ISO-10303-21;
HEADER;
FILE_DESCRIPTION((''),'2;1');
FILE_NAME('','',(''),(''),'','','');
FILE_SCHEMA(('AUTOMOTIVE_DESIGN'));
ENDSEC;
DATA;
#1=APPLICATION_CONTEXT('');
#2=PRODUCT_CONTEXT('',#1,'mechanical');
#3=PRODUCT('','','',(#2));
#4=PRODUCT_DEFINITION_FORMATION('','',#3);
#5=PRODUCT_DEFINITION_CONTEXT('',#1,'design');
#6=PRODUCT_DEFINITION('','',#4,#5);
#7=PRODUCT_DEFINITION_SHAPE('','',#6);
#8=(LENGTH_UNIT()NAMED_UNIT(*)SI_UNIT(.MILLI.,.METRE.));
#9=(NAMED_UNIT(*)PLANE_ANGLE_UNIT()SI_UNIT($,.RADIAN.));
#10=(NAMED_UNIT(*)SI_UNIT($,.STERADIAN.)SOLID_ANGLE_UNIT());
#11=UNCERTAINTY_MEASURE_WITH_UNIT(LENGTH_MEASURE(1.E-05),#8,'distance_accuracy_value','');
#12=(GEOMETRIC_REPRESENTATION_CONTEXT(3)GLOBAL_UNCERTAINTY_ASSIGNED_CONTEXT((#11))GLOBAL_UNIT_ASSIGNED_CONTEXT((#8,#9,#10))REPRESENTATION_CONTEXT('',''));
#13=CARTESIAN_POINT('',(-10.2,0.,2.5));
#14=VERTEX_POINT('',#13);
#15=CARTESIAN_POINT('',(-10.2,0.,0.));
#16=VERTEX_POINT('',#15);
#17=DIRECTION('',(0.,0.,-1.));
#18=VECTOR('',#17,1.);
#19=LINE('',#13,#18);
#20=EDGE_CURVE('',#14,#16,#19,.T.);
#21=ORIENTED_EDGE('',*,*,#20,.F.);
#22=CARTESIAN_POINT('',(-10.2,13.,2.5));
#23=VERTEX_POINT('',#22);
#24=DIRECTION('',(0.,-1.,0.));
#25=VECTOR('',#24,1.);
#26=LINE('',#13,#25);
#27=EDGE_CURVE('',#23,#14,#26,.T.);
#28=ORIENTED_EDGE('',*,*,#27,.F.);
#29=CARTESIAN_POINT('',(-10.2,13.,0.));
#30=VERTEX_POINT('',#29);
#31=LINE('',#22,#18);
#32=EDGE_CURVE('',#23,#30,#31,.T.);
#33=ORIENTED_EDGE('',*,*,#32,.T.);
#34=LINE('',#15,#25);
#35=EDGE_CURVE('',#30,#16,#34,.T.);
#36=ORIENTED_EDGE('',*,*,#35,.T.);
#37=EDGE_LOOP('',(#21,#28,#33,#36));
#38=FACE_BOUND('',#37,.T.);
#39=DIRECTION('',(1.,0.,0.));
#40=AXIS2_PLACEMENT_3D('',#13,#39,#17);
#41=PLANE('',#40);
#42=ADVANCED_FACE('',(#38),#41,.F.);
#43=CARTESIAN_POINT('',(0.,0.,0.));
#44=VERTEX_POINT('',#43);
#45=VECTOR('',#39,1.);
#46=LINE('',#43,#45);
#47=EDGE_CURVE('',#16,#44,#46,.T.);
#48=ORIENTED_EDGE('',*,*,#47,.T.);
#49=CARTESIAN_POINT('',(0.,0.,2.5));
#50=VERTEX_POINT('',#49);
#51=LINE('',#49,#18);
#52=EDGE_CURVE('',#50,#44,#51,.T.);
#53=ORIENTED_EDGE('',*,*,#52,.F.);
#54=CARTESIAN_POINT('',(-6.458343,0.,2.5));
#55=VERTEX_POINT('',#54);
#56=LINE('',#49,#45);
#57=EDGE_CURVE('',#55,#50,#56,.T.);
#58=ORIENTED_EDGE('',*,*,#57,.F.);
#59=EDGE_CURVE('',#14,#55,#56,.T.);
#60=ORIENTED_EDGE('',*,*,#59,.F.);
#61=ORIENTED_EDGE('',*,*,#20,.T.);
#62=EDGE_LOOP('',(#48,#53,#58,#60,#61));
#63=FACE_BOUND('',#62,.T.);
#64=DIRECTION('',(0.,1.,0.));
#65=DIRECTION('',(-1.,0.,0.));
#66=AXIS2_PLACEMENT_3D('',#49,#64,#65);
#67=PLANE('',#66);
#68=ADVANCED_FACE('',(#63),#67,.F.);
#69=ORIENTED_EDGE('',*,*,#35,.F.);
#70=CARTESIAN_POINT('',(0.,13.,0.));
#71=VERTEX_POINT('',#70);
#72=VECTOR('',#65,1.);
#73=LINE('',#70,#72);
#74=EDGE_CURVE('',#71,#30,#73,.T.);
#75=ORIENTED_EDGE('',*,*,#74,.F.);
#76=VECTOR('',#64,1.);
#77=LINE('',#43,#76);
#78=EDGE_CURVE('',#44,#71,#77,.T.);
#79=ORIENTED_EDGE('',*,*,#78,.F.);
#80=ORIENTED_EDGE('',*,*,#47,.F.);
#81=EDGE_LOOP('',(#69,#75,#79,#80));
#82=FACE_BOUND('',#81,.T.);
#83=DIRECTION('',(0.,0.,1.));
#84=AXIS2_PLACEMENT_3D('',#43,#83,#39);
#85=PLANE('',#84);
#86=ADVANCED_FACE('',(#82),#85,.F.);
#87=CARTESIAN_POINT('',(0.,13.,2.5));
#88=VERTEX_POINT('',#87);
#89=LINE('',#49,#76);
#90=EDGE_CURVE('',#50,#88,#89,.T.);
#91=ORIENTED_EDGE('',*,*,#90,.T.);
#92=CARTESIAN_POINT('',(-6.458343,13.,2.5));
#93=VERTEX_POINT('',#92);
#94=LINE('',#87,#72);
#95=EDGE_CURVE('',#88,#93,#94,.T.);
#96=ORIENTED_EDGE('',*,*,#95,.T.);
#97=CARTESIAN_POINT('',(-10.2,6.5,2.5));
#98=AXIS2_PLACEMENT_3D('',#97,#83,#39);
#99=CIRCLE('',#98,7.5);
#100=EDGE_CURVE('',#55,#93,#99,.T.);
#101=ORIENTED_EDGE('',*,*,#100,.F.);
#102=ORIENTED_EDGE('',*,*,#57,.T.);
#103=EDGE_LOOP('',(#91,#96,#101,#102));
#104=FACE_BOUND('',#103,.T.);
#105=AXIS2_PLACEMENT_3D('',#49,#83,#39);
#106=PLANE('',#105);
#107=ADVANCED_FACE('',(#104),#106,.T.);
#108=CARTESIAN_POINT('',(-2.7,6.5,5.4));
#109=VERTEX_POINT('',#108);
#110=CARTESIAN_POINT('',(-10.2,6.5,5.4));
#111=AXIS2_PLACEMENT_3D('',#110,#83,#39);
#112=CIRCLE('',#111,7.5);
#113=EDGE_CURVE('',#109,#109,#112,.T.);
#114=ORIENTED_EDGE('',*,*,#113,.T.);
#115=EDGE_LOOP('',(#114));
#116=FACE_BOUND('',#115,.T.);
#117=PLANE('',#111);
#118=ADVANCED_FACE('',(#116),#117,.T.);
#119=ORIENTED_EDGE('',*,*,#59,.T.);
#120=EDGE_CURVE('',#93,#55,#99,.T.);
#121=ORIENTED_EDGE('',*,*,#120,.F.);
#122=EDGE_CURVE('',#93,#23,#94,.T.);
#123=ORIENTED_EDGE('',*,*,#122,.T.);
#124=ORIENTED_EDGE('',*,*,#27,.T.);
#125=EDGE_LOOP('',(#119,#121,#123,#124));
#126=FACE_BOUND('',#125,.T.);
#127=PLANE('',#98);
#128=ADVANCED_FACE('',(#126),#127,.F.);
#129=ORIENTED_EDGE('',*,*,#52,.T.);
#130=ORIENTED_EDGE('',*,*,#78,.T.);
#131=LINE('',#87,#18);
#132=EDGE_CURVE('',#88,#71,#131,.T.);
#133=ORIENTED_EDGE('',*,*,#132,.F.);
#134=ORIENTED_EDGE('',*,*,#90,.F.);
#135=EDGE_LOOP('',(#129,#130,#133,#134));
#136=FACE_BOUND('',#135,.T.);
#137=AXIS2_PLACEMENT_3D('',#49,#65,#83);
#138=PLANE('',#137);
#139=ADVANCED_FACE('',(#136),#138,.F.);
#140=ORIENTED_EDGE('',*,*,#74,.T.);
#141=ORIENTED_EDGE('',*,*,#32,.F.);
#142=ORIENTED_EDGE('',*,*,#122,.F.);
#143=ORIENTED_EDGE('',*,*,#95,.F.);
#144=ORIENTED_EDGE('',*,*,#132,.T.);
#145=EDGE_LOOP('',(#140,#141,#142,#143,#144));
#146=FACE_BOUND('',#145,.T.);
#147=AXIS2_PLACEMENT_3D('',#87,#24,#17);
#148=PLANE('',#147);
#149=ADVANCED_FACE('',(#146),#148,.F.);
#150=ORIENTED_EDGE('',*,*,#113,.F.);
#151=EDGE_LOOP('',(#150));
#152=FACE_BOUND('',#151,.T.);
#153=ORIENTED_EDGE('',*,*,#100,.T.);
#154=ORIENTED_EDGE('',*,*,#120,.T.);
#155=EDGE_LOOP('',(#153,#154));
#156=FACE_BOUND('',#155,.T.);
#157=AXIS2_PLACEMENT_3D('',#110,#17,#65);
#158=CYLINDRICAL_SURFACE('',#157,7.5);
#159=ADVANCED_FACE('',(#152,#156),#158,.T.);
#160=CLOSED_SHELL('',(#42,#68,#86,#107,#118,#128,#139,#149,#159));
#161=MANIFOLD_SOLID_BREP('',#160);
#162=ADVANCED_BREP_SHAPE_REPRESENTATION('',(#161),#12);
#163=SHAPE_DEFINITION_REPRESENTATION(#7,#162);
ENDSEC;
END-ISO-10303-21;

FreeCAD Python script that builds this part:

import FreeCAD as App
import Part
import Sketcher


def add_polygon(sketch, points):
    """Adds a closed chain of lines whose ends are joined by coincident constraints."""
    first, n = sketch.GeometryCount, len(points)
    for a, b in zip(points, points[1:] + points[:1]):
        sketch.addGeometry(Part.LineSegment(App.Vector(*a, 0), App.Vector(*b, 0)), False)
    for i in range(n):
        sketch.addConstraint(Sketcher.Constraint("Coincident", first + i, 2, first + (i + 1) % n, 1))

doc = App.newDocument("Part")
params = doc.addObject("Spreadsheet::Sheet", "Params")
for row, (alias, value) in enumerate([
    ("sketch1_height", "13 mm"),
    ("sketch1_width", "10.2 mm"),
    ("pad1_length", "2.5 mm"),
    ("sketch2_diameter", "15 mm"),
    ("pad2_length", "2.9 mm"),
], start=1):
    params.set(f"A{row}", alias)
    params.set(f"B{row}", "=" + value)
    params.setAlias(f"B{row}", alias)

body = doc.addObject("PartDesign::Body", "Body")

sketch1 = body.newObject("Sketcher::SketchObject", "Sketch")
sketch1.AttachmentSupport = (doc.getObject("XY_Plane"), [""])
sketch1.MapMode = "FlatFace"
add_polygon(sketch1, [(-10, 13), (-10, 0), (0, 0), (0, 13)])
sketch1.addConstraint(Sketcher.Constraint("Vertical", 0))
sketch1.addConstraint(Sketcher.Constraint("Horizontal", 1))
sketch1.addConstraint(Sketcher.Constraint("Vertical", 2))
sketch1.addConstraint(Sketcher.Constraint("Horizontal", 3))
sketch1.addConstraint(Sketcher.Constraint("Coincident", 1, 2, -1, 1))
sketch1.addConstraint(Sketcher.Constraint("DistanceY", 0, 2, 0, 1, 13.0))
sketch1.addConstraint(Sketcher.Constraint("DistanceX", 1, 1, 1, 2, 10.2))
sketch1.setExpression("Constraints[9]", "Params.sketch1_height")
sketch1.setExpression("Constraints[10]", "Params.sketch1_width")
pad1 = body.newObject("PartDesign::Pad", "Pad")
pad1.Profile = sketch1
pad1.setExpression("Length", "Params.pad1_length")

sketch2 = body.newObject("Sketcher::SketchObject", "Sketch001")
sketch2.AttachmentSupport = (doc.getObject("XY_Plane"), [""])
sketch2.MapMode = "FlatFace"
sketch2.AttachmentOffset = App.Placement(App.Vector(0, 0, 2.5), App.Rotation())
sketch2.addGeometry(Part.Circle(App.Vector(-10, 6, 0), App.Vector(0, 0, 1), 8), False)
sketch2.addConstraint(Sketcher.Constraint("Diameter", 0, 15.0))
sketch2.addConstraint(Sketcher.Constraint("DistanceX", 0, 3, -1, 1, 10.2))
sketch2.addConstraint(Sketcher.Constraint("DistanceY", -1, 1, 0, 3, 6.5))
sketch2.setExpression("Constraints[0]", "Params.sketch2_diameter")
pad2 = body.newObject("PartDesign::Pad", "Pad001")
pad2.Profile = sketch2
pad2.setExpression("Length", "Params.pad2_length")

doc.recompute()
